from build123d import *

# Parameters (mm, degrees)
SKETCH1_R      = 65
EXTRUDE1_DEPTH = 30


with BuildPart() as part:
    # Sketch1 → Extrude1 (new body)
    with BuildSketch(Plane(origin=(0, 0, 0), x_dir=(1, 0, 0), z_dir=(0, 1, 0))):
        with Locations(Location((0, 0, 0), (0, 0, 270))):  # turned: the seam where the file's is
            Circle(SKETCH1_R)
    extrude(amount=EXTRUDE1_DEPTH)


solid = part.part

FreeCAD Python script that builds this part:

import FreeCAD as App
import Part
import Sketcher
from FreeCAD import Vector
Q = App.Units.Quantity

doc = App.newDocument("Part")
body = doc.addObject("PartDesign::Body", "Body")

# Sketch on XZ plane
sketch1 = doc.addObject("Sketcher::SketchObject", "Sketch")
body.addObject(sketch1)
sketch1.AttachmentSupport = (doc.XZ_Plane, [""])
sketch1.MapMode = "FlatFace"
sketch1.addGeometry(Part.Circle(Vector(0, 0, 0), Vector(0, 0, 1), 65), False)
sketch1.addConstraint([
    Sketcher.Constraint("Coincident", 0, 3, -1, 1),
    Sketcher.Constraint("Diameter", 0, Q("130 mm")),
])
pad1 = doc.addObject("PartDesign::Pad", "Pad")
body.addObject(pad1)
pad1.Profile = sketch1
pad1.Length = 30
pad1.Reversed = True

doc.recompute()
